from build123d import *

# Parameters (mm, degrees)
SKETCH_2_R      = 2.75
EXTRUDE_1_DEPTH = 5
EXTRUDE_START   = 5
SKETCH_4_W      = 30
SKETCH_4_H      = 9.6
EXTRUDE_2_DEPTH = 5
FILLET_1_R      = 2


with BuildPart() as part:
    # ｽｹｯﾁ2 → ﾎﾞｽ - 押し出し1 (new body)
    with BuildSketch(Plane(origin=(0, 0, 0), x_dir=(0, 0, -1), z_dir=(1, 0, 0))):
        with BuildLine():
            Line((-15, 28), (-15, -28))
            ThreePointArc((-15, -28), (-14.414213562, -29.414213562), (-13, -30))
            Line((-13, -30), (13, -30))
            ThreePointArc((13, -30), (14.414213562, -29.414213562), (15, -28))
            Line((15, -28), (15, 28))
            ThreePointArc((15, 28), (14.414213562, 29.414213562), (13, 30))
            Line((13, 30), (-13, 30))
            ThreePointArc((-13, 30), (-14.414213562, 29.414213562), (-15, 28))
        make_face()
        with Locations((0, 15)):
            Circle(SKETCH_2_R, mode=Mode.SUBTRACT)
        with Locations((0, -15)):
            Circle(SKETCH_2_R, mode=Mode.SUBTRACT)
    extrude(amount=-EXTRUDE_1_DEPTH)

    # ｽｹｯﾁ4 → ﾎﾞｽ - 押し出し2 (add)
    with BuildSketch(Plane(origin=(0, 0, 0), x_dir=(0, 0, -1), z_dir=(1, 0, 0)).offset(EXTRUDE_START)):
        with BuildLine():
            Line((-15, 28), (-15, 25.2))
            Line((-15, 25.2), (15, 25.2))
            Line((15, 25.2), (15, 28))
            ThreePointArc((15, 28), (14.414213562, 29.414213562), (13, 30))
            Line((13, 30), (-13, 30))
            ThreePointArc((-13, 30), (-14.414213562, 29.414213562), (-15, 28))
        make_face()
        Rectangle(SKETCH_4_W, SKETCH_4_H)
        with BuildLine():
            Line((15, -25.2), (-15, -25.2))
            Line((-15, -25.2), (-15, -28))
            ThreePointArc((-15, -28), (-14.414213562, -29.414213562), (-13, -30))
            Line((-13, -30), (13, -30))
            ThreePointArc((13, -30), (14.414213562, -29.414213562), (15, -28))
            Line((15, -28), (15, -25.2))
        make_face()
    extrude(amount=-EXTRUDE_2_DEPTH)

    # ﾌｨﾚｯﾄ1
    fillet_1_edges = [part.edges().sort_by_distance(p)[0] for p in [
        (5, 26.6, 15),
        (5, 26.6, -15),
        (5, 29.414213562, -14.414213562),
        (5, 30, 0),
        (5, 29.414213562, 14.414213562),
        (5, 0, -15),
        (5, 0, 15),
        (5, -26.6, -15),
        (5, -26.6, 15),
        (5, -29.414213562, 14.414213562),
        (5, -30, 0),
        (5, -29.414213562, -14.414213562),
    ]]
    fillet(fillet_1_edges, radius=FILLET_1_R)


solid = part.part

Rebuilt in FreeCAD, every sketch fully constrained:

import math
import FreeCAD as App
import Part
import Sketcher


def edges_at(feature, points):
    """Names of the edges that pass closest to the given points."""
    edges = feature.Shape.Edges
    near = lambda p: min(range(len(edges)), key=lambda i: edges[i].distToShape(Part.Vertex(*p))[0])
    return sorted({f"Edge{near(p) + 1}" for p in points})

doc = App.newDocument("Part")
body = doc.addObject("PartDesign::Body", "Body")

sketch1 = body.newObject("Sketcher::SketchObject", "Sketch")
sketch1.AttachmentSupport = (doc.getObject("YZ_Plane"), [""])
sketch1.MapMode = "FlatFace"
sketch1.addGeometry([
    Part.LineSegment(App.Vector(28, 15, 0), App.Vector(-28, 15, 0)),
    Part.ArcOfCircle(Part.Circle(App.Vector(-28, 13, 0), App.Vector(0, 0, 1), 2), math.radians(90), math.radians(180)),
    Part.LineSegment(App.Vector(-30, 13, 0), App.Vector(-30, -13, 0)),
    Part.ArcOfCircle(Part.Circle(App.Vector(-28, -13, 0), App.Vector(0, 0, 1), 2), math.radians(-180), math.radians(-90)),
    Part.LineSegment(App.Vector(-28, -15, 0), App.Vector(28, -15, 0)),
    Part.ArcOfCircle(Part.Circle(App.Vector(28, -13, 0), App.Vector(0, 0, 1), 2), math.radians(-90), math.radians(0)),
    Part.LineSegment(App.Vector(30, -13, 0), App.Vector(30, 13, 0)),
    Part.ArcOfCircle(Part.Circle(App.Vector(28, 13, 0), App.Vector(0, 0, 1), 2), math.radians(0), math.radians(90)),
    Part.Circle(App.Vector(-15, 0, 0), App.Vector(0, 0, 1), 2.8),
    Part.Circle(App.Vector(15, 0, 0), App.Vector(0, 0, 1), 2.8),
], False)
sketch1.addConstraint([
    Sketcher.Constraint("Tangent", 0, 2, 1, 1),
    Sketcher.Constraint("Tangent", 1, 2, 2, 1),
    Sketcher.Constraint("Tangent", 2, 2, 3, 1),
    Sketcher.Constraint("Tangent", 3, 2, 4, 1),
    Sketcher.Constraint("Tangent", 4, 2, 5, 1),
    Sketcher.Constraint("Tangent", 5, 2, 6, 1),
    Sketcher.Constraint("Tangent", 6, 2, 7, 1),
    Sketcher.Constraint("Tangent", 7, 2, 0, 1),
    Sketcher.Constraint("Horizontal", 0),
    Sketcher.Constraint("Vertical", 2),
    Sketcher.Constraint("Horizontal", 4),
    Sketcher.Constraint("Vertical", 6),
    Sketcher.Constraint("Equal", 1, 3),
    Sketcher.Constraint("Equal", 3, 5),
    Sketcher.Constraint("Equal", 5, 7),
    Sketcher.Constraint("Equal", 8, 9),
    Sketcher.Constraint("Symmetric", 1, 3, 5, 3, -1, 1),
    Sketcher.Constraint("Symmetric", 8, 3, 9, 3, -1, 1),
    Sketcher.Constraint("PointOnObject", 8, 3, -1),
    Sketcher.Constraint("Radius", 1, 2.0),
    Sketcher.Constraint("Diameter", 8, 5.5),
    Sketcher.Constraint("DistanceX", 0, 2, 0, 1, 56.0),
    Sketcher.Constraint("DistanceY", 2, 2, 2, 1, 26.0),
    Sketcher.Constraint("DistanceX", 8, 3, -1, 1, 15.0),
])
pad1 = body.newObject("PartDesign::Pad", "Pad")
pad1.Profile = sketch1
pad1.Length = 5
pad1.Reversed = True

sketch2 = body.newObject("Sketcher::SketchObject", "Sketch001")
sketch2.AttachmentSupport = (doc.getObject("YZ_Plane"), [""])
sketch2.MapMode = "FlatFace"
sketch2.AttachmentOffset = App.Placement(App.Vector(0, 0, 5), App.Rotation())
sketch2.addGeometry([
    Part.LineSegment(App.Vector(28, 15, 0), App.Vector(25.2, 15, 0)),
    Part.LineSegment(App.Vector(25.2, 15, 0), App.Vector(25.2, -15, 0)),
    Part.LineSegment(App.Vector(25.2, -15, 0), App.Vector(28, -15, 0)),
    Part.ArcOfCircle(Part.Circle(App.Vector(28, -13, 0), App.Vector(0, 0, 1), 2), math.radians(-90), math.radians(0)),
    Part.LineSegment(App.Vector(30, -13, 0), App.Vector(30, 13, 0)),
    Part.ArcOfCircle(Part.Circle(App.Vector(28, 13, 0), App.Vector(0, 0, 1), 2), math.radians(0), math.radians(90)),
    Part.LineSegment(App.Vector(4.8, 15, 0), App.Vector(-4.8, 15, 0)),
    Part.LineSegment(App.Vector(-4.8, 15, 0), App.Vector(-4.8, -15, 0)),
    Part.LineSegment(App.Vector(-4.8, -15, 0), App.Vector(4.8, -15, 0)),
    Part.LineSegment(App.Vector(4.8, -15, 0), App.Vector(4.8, 15, 0)),
    Part.LineSegment(App.Vector(-25.2, -15, 0), App.Vector(-25.2, 15, 0)),
    Part.LineSegment(App.Vector(-25.2, 15, 0), App.Vector(-28, 15, 0)),
    Part.ArcOfCircle(Part.Circle(App.Vector(-28, 13, 0), App.Vector(0, 0, 1), 2), math.radians(90), math.radians(180)),
    Part.LineSegment(App.Vector(-30, 13, 0), App.Vector(-30, -13, 0)),
    Part.ArcOfCircle(Part.Circle(App.Vector(-28, -13, 0), App.Vector(0, 0, 1), 2), math.radians(-180), math.radians(-90)),
    Part.LineSegment(App.Vector(-28, -15, 0), App.Vector(-25.2, -15, 0)),
], False)
sketch2.addConstraint([
    Sketcher.Constraint("Coincident", 0, 2, 1, 1),
    Sketcher.Constraint("Coincident", 1, 2, 2, 1),
    Sketcher.Constraint("Tangent", 2, 2, 3, 1),
    Sketcher.Constraint("Tangent", 3, 2, 4, 1),
    Sketcher.Constraint("Tangent", 4, 2, 5, 1),
    Sketcher.Constraint("Tangent", 5, 2, 0, 1),
    Sketcher.Constraint("Coincident", 6, 2, 7, 1),
    Sketcher.Constraint("Coincident", 7, 2, 8, 1),
    Sketcher.Constraint("Coincident", 8, 2, 9, 1),
    Sketcher.Constraint("Coincident", 9, 2, 6, 1),
    Sketcher.Constraint("Coincident", 10, 2, 11, 1),
    Sketcher.Constraint("Tangent", 11, 2, 12, 1),
    Sketcher.Constraint("Tangent", 12, 2, 13, 1),
    Sketcher.Constraint("Tangent", 13, 2, 14, 1),
    Sketcher.Constraint("Tangent", 14, 2, 15, 1),
    Sketcher.Constraint("Coincident", 15, 2, 10, 1),
    Sketcher.Constraint("Horizontal", 0),
    Sketcher.Constraint("Vertical", 1),
    Sketcher.Constraint("Horizontal", 2),
    Sketcher.Constraint("Vertical", 4),
    Sketcher.Constraint("Horizontal", 6),
    Sketcher.Constraint("Vertical", 7),
    Sketcher.Constraint("Horizontal", 8),
    Sketcher.Constraint("Vertical", 9),
    Sketcher.Constraint("Vertical", 10),
    Sketcher.Constraint("Horizontal", 11),
    Sketcher.Constraint("Vertical", 13),
    Sketcher.Constraint("Horizontal", 15),
    Sketcher.Constraint("Equal", 3, 5),
    Sketcher.Constraint("Equal", 5, 12),
    Sketcher.Constraint("Equal", 12, 14),
    Sketcher.Constraint("Symmetric", 3, 3, 12, 3, -1, 1),
    Sketcher.Constraint("Symmetric", 6, 2, 8, 2, -1, 1),
    Sketcher.Constraint("Symmetric", 0, 2, 15, 2, -1, 1),
    Sketcher.Constraint("Horizontal", 5, 3, 12, 3),
    Sketcher.Constraint("Horizontal", 5, 2, 6, 2),
    Sketcher.Constraint("Radius", 3, 2.0),
    Sketcher.Constraint("DistanceY", 1, 2, 1, 1, 30.0),
    Sketcher.Constraint("DistanceX", 0, 2, 0, 1, 2.8),
    Sketcher.Constraint("DistanceX", 6, 2, 6, 1, 9.6),
    Sketcher.Constraint("DistanceX", -1, 1, 3, 3, 28.0),
])
pad2 = body.newObject("PartDesign::Pad", "Pad001")
pad2.Profile = sketch2
pad2.Length = 5
pad2.Reversed = True
doc.recompute()

fillet = body.newObject("PartDesign::Fillet", "Fillet")
fillet.Base = (pad2, edges_at(pad2, [
    (5, 26.6, 15),
    (5, 26.6, -15),
    (5, 29.414, -14.414),
    (5, 30, 0),
    (5, 29.414, 14.414),
    (5, 0, -15),
    (5, 0, 15),
    (5, -26.6, -15),
    (5, -26.6, 15),
    (5, -29.414, 14.414),
    (5, -30, 0),
    (5, -29.414, -14.414),
]))
fillet.Radius = 2

doc.recompute()
